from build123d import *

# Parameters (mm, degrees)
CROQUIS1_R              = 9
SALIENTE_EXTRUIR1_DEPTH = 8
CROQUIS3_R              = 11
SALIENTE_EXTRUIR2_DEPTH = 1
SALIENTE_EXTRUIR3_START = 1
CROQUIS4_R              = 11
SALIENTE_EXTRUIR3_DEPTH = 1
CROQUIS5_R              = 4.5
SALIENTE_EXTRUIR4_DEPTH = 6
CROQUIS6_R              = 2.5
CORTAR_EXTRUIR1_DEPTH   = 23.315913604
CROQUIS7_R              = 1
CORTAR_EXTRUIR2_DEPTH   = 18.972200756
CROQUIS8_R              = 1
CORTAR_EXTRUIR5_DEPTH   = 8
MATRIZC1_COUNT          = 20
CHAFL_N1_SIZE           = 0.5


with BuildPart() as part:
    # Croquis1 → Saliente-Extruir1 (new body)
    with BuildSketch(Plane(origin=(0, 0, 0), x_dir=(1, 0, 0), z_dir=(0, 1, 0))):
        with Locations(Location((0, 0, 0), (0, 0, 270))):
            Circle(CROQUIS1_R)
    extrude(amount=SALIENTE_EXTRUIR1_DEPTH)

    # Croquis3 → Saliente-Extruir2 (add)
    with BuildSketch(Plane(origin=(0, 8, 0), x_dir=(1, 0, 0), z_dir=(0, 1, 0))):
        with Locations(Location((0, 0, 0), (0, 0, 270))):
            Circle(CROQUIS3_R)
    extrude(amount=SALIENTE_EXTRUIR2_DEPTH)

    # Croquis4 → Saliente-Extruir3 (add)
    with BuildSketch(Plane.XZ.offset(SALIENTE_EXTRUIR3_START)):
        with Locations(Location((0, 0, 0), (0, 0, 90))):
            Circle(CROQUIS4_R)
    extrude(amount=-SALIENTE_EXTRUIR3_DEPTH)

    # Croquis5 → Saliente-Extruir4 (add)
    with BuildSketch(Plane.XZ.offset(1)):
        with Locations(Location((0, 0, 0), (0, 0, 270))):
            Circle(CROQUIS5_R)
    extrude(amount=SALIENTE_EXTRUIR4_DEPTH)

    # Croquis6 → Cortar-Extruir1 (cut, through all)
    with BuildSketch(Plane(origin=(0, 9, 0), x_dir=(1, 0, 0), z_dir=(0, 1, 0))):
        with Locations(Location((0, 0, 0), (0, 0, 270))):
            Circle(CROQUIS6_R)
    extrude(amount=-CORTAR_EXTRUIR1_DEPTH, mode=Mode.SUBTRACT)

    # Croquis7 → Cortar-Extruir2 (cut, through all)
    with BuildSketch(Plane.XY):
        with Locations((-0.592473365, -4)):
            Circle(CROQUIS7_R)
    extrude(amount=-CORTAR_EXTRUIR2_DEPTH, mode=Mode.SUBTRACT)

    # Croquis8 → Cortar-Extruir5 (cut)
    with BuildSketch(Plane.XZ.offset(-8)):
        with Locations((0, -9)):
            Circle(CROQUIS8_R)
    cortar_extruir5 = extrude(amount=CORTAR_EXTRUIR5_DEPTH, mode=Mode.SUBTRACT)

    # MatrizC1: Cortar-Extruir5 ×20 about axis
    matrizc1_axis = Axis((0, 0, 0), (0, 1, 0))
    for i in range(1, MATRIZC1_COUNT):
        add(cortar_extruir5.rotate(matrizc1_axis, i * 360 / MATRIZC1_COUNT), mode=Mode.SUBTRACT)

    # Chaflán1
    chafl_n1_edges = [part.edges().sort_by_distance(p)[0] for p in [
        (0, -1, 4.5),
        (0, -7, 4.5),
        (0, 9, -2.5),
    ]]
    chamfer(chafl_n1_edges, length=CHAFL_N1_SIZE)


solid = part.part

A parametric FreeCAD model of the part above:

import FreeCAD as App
import Part
import Sketcher


def edges_at(feature, points):
    """Names of the edges that pass closest to the given points."""
    edges = feature.Shape.Edges
    near = lambda p: min(range(len(edges)), key=lambda i: edges[i].distToShape(Part.Vertex(*p))[0])
    return sorted({f"Edge{near(p) + 1}" for p in points})

doc = App.newDocument("Part")
body = doc.addObject("PartDesign::Body", "Body")

# Sketch on XZ plane
sketch1 = doc.addObject("Sketcher::SketchObject", "Sketch")
body.addObject(sketch1)
sketch1.AttachmentSupport = (doc.XZ_Plane, [""])
sketch1.MapMode = "FlatFace"
sketch1.addGeometry(Part.Circle(App.Vector(0, 0, 0), App.Vector(0, 0, 1), 9), False)
sketch1.addConstraint(Sketcher.Constraint("Coincident", 0, 3, -1, 1))
sketch1.addConstraint(Sketcher.Constraint("Diameter", 0, 18.0))
pad1 = doc.addObject("PartDesign::Pad", "Pad")
body.addObject(pad1)
pad1.Profile = sketch1
pad1.Length = 8
pad1.Reversed = True

# Sketch on XZ plane
sketch2 = doc.addObject("Sketcher::SketchObject", "Sketch001")
body.addObject(sketch2)
sketch2.AttachmentSupport = (doc.XZ_Plane, [""])
sketch2.MapMode = "FlatFace"
sketch2.AttachmentOffset = App.Placement(App.Vector(0, 0, -8), App.Rotation())
sketch2.addGeometry(Part.Circle(App.Vector(0, 0, 0), App.Vector(0, 0, 1), 11), False)
sketch2.addConstraint(Sketcher.Constraint("Coincident", 0, 3, -1, 1))
sketch2.addConstraint(Sketcher.Constraint("Diameter", 0, 22.0))
pad2 = doc.addObject("PartDesign::Pad", "Pad001")
body.addObject(pad2)
pad2.Profile = sketch2
pad2.Length = 1
pad2.Reversed = True

# Sketch on XZ plane
sketch3 = doc.addObject("Sketcher::SketchObject", "Sketch002")
body.addObject(sketch3)
sketch3.AttachmentSupport = (doc.XZ_Plane, [""])
sketch3.MapMode = "FlatFace"
sketch3.AttachmentOffset = App.Placement(App.Vector(0, 0, 1), App.Rotation())
sketch3.addGeometry(Part.Circle(App.Vector(0, 0, 0), App.Vector(0, 0, 1), 11), False)
sketch3.addConstraint(Sketcher.Constraint("Coincident", 0, 3, -1, 1))
sketch3.addConstraint(Sketcher.Constraint("Diameter", 0, 22.0))
pad3 = doc.addObject("PartDesign::Pad", "Pad002")
body.addObject(pad3)
pad3.Profile = sketch3
pad3.Length = 1
pad3.Reversed = True

# Sketch on XZ plane
sketch4 = doc.addObject("Sketcher::SketchObject", "Sketch003")
body.addObject(sketch4)
sketch4.AttachmentSupport = (doc.XZ_Plane, [""])
sketch4.MapMode = "FlatFace"
sketch4.AttachmentOffset = App.Placement(App.Vector(0, 0, 1), App.Rotation())
sketch4.addGeometry(Part.Circle(App.Vector(0, 0, 0), App.Vector(0, 0, 1), 4.5), False)
sketch4.addConstraint(Sketcher.Constraint("Coincident", 0, 3, -1, 1))
sketch4.addConstraint(Sketcher.Constraint("Diameter", 0, 9.0))
pad4 = doc.addObject("PartDesign::Pad", "Pad003")
body.addObject(pad4)
pad4.Profile = sketch4
pad4.Length = 6

# Sketch on XZ plane
sketch5 = doc.addObject("Sketcher::SketchObject", "Sketch004")
body.addObject(sketch5)
sketch5.AttachmentSupport = (doc.XZ_Plane, [""])
sketch5.MapMode = "FlatFace"
sketch5.AttachmentOffset = App.Placement(App.Vector(0, 0, -9), App.Rotation())
sketch5.addGeometry(Part.Circle(App.Vector(0, 0, 0), App.Vector(0, 0, 1), 2.5), False)
sketch5.addConstraint(Sketcher.Constraint("Coincident", 0, 3, -1, 1))
sketch5.addConstraint(Sketcher.Constraint("Diameter", 0, 5.0))
pocket1 = doc.addObject("PartDesign::Pocket", "Pocket")
body.addObject(pocket1)
pocket1.Profile = sketch5
pocket1.Type = "ThroughAll"
pocket1.Reversed = True

# Sketch on XY plane
sketch6 = doc.addObject("Sketcher::SketchObject", "Sketch005")
body.addObject(sketch6)
sketch6.AttachmentSupport = (doc.XY_Plane, [""])
sketch6.MapMode = "FlatFace"
sketch6.addGeometry(Part.Circle(App.Vector(-0.592473, -4, 0), App.Vector(0, 0, 1), 1), False)
sketch6.addConstraint(Sketcher.Constraint("Diameter", 0, 2.0))
sketch6.addConstraint(Sketcher.Constraint("DistanceY", 0, 3, -1, 1, 4.0))
sketch6.addConstraint(Sketcher.Constraint("DistanceX", 0, 3, -1, 1, 0.592473))
pocket2 = doc.addObject("PartDesign::Pocket", "Pocket001")
body.addObject(pocket2)
pocket2.Profile = sketch6
pocket2.Type = "ThroughAll"

# Sketch on XZ plane
sketch7 = doc.addObject("Sketcher::SketchObject", "Sketch006")
body.addObject(sketch7)
sketch7.AttachmentSupport = (doc.XZ_Plane, [""])
sketch7.MapMode = "FlatFace"
sketch7.AttachmentOffset = App.Placement(App.Vector(0, 0, -8), App.Rotation())
sketch7.addGeometry(Part.Circle(App.Vector(0, -9, 0), App.Vector(0, 0, 1), 1), False)
sketch7.addConstraint(Sketcher.Constraint("PointOnObject", 0, 3, -2))
sketch7.addConstraint(Sketcher.Constraint("Diameter", 0, 2.0))
sketch7.addConstraint(Sketcher.Constraint("DistanceY", 0, 3, -1, 1, 9.0))
pocket3 = doc.addObject("PartDesign::Pocket", "Pocket002")
body.addObject(pocket3)
pocket3.Profile = sketch7
pocket3.Length = 8
pocket3.Reversed = True
doc.recompute()

polarpattern = doc.addObject("PartDesign::PolarPattern", "PolarPattern")
body.addObject(polarpattern)
polarpattern.Originals = [pocket3]
polarpattern.Axis = (doc.Y_Axis, [""])
polarpattern.Angle = 360
polarpattern.Occurrences = 20
body.Tip = polarpattern
doc.recompute()

chamfer = doc.addObject("PartDesign::Chamfer", "Chamfer")
body.addObject(chamfer)
chamfer.Base = (polarpattern, edges_at(polarpattern, [(0, -1, 4.5), (0, -7, 4.5), (0, 9, -2.5)]))
chamfer.Size = 0.5

doc.recompute()
